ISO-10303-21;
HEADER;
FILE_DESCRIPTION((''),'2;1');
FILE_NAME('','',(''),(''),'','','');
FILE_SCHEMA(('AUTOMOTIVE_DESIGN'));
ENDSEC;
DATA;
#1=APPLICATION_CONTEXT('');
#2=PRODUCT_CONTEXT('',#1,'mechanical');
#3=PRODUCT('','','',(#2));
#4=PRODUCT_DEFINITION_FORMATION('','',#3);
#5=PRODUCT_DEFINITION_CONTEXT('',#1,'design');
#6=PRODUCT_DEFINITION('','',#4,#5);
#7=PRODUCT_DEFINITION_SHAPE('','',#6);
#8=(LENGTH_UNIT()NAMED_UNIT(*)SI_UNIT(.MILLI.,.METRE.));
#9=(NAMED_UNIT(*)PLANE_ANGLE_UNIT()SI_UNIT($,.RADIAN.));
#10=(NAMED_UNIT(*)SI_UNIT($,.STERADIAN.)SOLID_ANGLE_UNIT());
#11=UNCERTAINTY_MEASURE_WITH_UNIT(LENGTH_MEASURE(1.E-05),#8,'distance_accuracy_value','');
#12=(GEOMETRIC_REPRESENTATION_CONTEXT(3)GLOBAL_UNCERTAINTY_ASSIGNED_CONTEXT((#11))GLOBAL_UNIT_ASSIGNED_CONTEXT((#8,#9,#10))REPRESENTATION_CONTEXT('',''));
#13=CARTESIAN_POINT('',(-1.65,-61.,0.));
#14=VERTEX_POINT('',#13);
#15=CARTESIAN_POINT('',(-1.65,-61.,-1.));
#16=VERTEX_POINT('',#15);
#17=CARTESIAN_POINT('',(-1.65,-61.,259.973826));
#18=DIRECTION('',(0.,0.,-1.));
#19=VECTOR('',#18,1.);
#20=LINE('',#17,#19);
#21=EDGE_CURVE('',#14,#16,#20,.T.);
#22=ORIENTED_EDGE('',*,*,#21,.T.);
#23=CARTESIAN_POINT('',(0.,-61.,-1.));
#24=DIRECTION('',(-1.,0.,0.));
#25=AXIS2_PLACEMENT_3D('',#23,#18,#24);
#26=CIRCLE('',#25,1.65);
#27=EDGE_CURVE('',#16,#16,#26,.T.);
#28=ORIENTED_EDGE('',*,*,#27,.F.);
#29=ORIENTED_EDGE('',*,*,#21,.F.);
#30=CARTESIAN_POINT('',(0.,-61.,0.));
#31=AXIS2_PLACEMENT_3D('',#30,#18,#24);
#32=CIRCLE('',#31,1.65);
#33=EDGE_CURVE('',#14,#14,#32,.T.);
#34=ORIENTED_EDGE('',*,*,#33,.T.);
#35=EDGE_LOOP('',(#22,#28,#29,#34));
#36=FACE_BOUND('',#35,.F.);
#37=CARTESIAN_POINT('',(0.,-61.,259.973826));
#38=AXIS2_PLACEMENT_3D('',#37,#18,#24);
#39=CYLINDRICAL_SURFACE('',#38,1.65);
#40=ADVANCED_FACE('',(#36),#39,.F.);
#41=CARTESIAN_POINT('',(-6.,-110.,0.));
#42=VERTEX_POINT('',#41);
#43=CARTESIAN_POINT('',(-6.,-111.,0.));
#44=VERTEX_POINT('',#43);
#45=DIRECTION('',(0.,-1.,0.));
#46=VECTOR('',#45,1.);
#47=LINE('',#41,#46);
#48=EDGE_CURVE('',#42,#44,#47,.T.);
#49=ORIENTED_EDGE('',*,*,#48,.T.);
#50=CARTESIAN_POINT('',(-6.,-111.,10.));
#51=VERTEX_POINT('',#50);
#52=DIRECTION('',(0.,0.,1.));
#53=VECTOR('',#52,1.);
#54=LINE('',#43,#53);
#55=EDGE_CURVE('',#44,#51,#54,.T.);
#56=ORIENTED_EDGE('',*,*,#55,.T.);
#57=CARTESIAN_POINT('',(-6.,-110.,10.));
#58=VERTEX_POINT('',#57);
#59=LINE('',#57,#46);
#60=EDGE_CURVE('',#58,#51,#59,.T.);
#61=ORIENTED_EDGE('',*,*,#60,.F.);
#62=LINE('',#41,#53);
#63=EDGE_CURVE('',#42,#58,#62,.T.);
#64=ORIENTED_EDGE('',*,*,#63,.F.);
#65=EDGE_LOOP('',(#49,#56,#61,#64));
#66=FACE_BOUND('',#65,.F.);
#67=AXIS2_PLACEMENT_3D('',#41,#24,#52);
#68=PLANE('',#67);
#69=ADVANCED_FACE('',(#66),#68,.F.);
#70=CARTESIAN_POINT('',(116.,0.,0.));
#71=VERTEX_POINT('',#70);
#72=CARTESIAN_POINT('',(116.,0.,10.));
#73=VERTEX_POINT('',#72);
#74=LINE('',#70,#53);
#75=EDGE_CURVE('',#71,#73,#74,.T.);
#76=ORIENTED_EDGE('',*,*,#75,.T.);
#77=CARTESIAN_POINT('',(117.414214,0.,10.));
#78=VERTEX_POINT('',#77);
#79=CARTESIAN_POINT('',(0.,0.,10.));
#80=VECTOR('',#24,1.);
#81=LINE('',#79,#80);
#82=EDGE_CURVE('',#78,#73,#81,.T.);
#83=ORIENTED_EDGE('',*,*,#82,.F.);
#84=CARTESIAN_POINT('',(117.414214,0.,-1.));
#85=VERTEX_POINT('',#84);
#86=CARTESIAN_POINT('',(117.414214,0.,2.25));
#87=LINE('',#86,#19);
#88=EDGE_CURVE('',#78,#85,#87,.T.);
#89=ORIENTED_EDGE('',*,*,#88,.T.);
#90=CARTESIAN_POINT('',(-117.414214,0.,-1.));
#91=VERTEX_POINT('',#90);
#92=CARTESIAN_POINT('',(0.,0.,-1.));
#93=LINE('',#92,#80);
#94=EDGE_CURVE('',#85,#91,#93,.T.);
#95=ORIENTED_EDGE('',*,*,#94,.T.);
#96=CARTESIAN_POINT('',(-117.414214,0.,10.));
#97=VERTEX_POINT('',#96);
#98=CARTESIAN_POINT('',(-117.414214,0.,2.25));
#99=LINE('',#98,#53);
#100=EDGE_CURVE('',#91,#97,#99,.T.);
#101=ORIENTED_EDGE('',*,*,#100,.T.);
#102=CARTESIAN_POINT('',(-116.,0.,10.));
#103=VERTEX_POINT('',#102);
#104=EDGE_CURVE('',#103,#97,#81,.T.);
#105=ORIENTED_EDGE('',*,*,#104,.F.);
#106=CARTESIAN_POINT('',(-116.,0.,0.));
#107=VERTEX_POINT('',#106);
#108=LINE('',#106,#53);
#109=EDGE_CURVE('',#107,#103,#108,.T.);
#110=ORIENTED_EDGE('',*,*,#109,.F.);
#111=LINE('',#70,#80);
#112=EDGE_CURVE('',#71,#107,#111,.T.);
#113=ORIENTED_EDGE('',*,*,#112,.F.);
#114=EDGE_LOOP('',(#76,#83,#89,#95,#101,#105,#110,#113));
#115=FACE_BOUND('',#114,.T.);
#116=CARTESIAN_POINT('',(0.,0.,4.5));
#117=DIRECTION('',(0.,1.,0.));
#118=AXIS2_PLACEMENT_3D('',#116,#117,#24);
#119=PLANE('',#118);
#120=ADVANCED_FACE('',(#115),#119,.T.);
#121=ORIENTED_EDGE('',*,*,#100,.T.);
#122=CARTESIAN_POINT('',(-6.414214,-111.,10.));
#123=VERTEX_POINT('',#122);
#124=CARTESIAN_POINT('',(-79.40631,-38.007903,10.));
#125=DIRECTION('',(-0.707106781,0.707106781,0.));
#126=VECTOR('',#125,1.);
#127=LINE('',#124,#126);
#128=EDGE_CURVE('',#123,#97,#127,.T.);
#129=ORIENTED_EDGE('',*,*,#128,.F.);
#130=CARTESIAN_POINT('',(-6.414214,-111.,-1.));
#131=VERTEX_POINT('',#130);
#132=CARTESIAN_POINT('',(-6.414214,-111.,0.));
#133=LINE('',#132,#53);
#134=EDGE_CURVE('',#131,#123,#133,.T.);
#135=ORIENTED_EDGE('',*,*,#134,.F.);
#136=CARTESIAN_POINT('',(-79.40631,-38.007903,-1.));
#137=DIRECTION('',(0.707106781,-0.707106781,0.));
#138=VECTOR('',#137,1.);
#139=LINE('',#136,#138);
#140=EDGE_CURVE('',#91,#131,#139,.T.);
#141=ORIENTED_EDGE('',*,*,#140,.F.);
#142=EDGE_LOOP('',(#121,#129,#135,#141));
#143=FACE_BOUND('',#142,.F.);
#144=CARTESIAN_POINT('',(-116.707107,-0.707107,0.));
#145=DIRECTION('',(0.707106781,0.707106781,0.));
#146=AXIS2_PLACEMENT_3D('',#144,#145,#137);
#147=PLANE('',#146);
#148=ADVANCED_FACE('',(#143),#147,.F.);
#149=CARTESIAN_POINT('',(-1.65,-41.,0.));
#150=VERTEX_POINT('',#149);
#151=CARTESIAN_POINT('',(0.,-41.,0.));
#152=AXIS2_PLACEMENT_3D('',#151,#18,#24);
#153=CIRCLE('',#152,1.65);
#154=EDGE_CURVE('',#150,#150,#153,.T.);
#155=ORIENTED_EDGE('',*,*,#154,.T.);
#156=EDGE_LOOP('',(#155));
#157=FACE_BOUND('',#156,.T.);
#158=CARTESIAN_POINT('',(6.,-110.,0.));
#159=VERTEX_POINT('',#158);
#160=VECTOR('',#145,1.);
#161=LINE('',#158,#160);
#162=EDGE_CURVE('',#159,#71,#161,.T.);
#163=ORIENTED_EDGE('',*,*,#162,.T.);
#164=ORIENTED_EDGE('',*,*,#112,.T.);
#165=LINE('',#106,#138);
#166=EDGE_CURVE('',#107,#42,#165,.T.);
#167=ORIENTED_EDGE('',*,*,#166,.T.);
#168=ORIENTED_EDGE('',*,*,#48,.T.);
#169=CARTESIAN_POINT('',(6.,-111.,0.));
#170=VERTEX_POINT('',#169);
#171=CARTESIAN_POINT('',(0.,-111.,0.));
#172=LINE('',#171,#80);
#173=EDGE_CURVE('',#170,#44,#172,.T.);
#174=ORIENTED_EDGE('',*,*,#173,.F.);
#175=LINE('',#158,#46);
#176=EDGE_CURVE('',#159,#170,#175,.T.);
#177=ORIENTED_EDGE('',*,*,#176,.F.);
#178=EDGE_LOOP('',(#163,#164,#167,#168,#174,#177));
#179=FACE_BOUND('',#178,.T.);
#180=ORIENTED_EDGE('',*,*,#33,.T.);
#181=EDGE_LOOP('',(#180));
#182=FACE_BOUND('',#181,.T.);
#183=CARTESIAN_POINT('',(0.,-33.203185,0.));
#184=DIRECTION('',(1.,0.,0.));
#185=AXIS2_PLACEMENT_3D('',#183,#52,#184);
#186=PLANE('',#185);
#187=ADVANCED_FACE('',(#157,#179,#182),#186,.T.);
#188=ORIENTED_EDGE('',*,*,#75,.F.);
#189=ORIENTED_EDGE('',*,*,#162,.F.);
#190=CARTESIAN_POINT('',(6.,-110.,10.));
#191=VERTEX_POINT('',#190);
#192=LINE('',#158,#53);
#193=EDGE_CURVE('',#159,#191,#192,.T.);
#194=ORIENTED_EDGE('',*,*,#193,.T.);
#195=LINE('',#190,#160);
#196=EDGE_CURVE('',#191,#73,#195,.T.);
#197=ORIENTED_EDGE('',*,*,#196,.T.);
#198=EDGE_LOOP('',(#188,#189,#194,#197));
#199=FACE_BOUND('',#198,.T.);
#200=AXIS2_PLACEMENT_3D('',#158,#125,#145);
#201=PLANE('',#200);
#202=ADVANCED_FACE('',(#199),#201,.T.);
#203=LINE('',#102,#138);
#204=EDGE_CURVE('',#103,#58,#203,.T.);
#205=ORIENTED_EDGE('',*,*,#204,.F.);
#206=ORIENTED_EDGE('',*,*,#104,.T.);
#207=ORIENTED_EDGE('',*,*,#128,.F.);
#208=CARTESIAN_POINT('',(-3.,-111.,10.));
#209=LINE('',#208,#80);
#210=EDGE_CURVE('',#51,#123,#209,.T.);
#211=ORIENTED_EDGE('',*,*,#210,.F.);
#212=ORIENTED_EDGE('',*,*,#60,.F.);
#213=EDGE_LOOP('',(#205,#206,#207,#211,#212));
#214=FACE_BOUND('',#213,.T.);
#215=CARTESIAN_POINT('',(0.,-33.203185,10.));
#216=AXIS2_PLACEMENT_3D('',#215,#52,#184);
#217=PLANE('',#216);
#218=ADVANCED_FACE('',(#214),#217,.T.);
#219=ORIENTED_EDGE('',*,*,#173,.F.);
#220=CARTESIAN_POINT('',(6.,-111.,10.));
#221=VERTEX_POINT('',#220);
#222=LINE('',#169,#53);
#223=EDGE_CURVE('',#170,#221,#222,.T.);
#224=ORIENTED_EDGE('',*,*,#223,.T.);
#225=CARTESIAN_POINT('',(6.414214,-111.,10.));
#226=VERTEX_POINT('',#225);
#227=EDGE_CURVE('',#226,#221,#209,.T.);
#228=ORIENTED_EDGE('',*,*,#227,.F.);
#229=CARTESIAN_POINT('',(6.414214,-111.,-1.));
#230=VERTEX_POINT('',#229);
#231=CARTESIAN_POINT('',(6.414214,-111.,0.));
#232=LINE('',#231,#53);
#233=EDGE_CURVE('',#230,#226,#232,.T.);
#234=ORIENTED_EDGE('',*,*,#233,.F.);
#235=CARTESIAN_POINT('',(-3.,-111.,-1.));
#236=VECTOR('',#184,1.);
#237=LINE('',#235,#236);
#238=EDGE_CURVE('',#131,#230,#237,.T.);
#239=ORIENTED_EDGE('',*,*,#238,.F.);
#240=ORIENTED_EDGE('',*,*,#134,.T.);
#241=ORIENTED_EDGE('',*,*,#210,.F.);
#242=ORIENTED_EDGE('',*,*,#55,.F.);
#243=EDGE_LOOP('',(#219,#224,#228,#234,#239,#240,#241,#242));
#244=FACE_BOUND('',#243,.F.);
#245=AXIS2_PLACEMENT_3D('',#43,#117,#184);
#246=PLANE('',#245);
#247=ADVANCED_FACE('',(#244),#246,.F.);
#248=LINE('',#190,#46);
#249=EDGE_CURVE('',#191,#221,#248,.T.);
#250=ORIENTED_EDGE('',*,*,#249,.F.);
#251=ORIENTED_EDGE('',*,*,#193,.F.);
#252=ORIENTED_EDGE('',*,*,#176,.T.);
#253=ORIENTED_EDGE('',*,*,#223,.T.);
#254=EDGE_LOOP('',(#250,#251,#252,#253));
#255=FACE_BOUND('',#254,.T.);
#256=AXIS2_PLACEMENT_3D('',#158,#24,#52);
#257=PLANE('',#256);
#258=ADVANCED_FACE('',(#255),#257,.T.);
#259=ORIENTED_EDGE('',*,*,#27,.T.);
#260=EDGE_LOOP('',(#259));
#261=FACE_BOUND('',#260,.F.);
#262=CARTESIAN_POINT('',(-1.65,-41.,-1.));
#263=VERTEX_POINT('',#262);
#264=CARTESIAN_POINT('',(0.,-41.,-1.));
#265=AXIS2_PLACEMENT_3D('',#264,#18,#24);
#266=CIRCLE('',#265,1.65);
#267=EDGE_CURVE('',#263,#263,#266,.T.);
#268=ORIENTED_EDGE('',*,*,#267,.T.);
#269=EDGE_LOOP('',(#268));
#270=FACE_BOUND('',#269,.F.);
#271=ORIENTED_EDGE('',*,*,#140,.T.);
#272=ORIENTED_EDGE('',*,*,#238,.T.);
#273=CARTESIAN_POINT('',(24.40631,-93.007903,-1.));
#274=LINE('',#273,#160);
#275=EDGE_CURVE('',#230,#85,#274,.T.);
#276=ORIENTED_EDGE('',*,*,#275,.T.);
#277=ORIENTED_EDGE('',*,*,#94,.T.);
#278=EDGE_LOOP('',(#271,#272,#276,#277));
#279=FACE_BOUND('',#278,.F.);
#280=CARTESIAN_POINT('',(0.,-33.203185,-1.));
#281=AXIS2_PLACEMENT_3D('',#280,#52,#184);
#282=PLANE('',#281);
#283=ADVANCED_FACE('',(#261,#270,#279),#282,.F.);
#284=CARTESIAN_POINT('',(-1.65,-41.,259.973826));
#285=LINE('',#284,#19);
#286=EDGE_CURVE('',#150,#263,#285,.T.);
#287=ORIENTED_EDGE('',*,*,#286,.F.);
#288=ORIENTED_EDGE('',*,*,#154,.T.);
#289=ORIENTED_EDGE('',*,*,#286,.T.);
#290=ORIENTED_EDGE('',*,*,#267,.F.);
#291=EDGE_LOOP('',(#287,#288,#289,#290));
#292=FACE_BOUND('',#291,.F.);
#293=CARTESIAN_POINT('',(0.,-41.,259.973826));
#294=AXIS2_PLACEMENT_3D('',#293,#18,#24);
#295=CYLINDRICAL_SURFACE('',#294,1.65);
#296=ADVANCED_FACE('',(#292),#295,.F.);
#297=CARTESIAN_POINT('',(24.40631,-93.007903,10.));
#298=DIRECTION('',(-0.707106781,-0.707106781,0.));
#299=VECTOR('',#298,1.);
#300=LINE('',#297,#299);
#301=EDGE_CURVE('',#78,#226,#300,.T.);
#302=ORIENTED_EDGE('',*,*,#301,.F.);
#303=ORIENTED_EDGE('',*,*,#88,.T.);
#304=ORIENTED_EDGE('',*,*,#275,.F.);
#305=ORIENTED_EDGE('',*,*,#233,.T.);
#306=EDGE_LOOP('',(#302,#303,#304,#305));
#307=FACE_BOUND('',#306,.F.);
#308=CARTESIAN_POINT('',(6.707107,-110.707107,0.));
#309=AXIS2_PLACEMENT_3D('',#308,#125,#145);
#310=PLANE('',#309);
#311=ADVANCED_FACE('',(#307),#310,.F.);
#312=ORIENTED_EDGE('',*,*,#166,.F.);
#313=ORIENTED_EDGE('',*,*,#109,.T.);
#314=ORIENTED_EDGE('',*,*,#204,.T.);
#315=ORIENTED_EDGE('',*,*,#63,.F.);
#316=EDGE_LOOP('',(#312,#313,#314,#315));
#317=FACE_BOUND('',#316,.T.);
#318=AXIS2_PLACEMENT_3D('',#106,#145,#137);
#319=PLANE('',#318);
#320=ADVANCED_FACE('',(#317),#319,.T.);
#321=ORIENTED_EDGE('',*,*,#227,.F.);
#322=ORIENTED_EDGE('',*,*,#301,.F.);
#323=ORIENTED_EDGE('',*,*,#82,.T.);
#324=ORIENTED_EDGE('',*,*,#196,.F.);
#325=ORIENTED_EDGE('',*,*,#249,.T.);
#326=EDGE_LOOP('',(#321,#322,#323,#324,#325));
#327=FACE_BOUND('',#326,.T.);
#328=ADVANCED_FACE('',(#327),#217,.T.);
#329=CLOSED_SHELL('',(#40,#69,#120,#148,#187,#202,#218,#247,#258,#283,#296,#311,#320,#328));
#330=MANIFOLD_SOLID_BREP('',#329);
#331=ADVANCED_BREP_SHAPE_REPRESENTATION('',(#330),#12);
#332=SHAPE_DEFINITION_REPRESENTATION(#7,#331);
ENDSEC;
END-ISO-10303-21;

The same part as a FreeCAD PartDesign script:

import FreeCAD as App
import Part
import Sketcher
from FreeCAD import Vector
Q = App.Units.Quantity


def faces_at(feature, points):
    """Names of the faces that lie closest to the given points."""
    faces = feature.Shape.Faces
    near = lambda p: min(range(len(faces)), key=lambda i: faces[i].distToShape(Part.Vertex(*p))[0])
    return sorted({f"Face{near(p) + 1}" for p in points})


def add_polygon(sketch, points):
    """Adds a closed chain of lines whose ends are joined by coincident constraints."""
    first, n = sketch.GeometryCount, len(points)
    for a, b in zip(points, points[1:] + points[:1]):
        sketch.addGeometry(Part.LineSegment(App.Vector(*a, 0), App.Vector(*b, 0)), False)
    for i in range(n):
        sketch.addConstraint(Sketcher.Constraint("Coincident", first + i, 2, first + (i + 1) % n, 1))

doc = App.newDocument("Part")
body = doc.addObject("PartDesign::Body", "Body")

# Sketch on XY plane
sketch1 = doc.addObject("Sketcher::SketchObject", "Sketch")
body.addObject(sketch1)
sketch1.AttachmentSupport = (doc.XY_Plane, [""])
sketch1.MapMode = "FlatFace"
add_polygon(sketch1, [(116, 0), (-116, 0), (-6, -110), (6, -110)])  # lines 0-3
sketch1.addConstraint(Sketcher.Constraint("Horizontal", 0))
sketch1.addConstraint(Sketcher.Constraint("Horizontal", 2))
sketch1.addConstraint(Sketcher.Constraint("Symmetric", 0, 2, 3, 2, -1, 1))
sketch1.addConstraint(Sketcher.Constraint("Perpendicular", 1, 3))
sketch1.addConstraint(Sketcher.Constraint("Equal", 1, 3))
sketch1.addConstraint(Sketcher.Constraint("DistanceX", 0, 2, 0, 1, Q("232 mm")))
sketch1.addConstraint(Sketcher.Constraint("DistanceX", 2, 1, 2, 2, Q("12 mm")))
pad1 = doc.addObject("PartDesign::Pad", "Pad")
body.addObject(pad1)
pad1.Profile = sketch1
pad1.Length = 10
doc.recompute()

thickness = doc.addObject("PartDesign::Thickness", "Thickness")
body.addObject(thickness)
thickness.Base = (pad1, faces_at(pad1, [(0, -55, 10)]))
thickness.Value = 1
thickness.Reversed = False
thickness.Join = "Intersection"

# Sketch on XZ plane
sketch2 = doc.addObject("Sketcher::SketchObject", "Sketch001")
body.addObject(sketch2)
sketch2.AttachmentSupport = (doc.XZ_Plane, [""])
sketch2.MapMode = "FlatFace"
sketch2.AttachmentOffset = App.Placement(Vector(0, 0, 110), App.Rotation())
add_polygon(sketch2, [(6, 10), (6, 0), (-6, 0), (-6, 10)])  # lines 0-3
sketch2.addConstraint(Sketcher.Constraint("Vertical", 0))
sketch2.addConstraint(Sketcher.Constraint("Horizontal", 1))
sketch2.addConstraint(Sketcher.Constraint("Vertical", 2))
sketch2.addConstraint(Sketcher.Constraint("Horizontal", 3))
sketch2.addConstraint(Sketcher.Constraint("Symmetric", 0, 2, 1, 2, -1, 1))
sketch2.addConstraint(Sketcher.Constraint("DistanceX", 1, 2, 1, 1, Q("12 mm")))
sketch2.addConstraint(Sketcher.Constraint("DistanceY", 0, 2, 0, 1, Q("10 mm")))
pocket1 = doc.addObject("PartDesign::Pocket", "Pocket")
body.addObject(pocket1)
pocket1.Profile = sketch2
pocket1.Length = 25
pocket1.Reversed = True

# Sketch on XZ plane
sketch3 = doc.addObject("Sketcher::SketchObject", "Sketch002")
body.addObject(sketch3)
sketch3.AttachmentSupport = (doc.XZ_Plane, [""])
sketch3.MapMode = "FlatFace"
sketch3.AttachmentOffset = App.Placement(Vector(0, 0, -1), App.Rotation())
add_polygon(sketch3, [(118, 10), (118, -1), (-118, -1), (-118, 10)])  # lines 0-3
sketch3.addConstraint(Sketcher.Constraint("Vertical", 0))
sketch3.addConstraint(Sketcher.Constraint("Horizontal", 1))
sketch3.addConstraint(Sketcher.Constraint("Vertical", 2))
sketch3.addConstraint(Sketcher.Constraint("Horizontal", 3))
sketch3.addConstraint(Sketcher.Constraint("DistanceY", 0, 2, 0, 1, Q("11 mm")))
sketch3.addConstraint(Sketcher.Constraint("DistanceY", 0, 2, -1, 1, Q("1 mm")))
sketch3.addConstraint(Sketcher.Constraint("DistanceX", 1, 2, 1, 1, Q("236.828427 mm")))
sketch3.addConstraint(Sketcher.Constraint("DistanceX", -1, 1, 0, 2, Q("118.414214 mm")))
pocket2 = doc.addObject("PartDesign::Pocket", "Pocket001")
body.addObject(pocket2)
pocket2.Profile = sketch3
pocket2.Length = 1
pocket2.Reversed = True

# Sketch on XY plane
sketch4 = doc.addObject("Sketcher::SketchObject", "Sketch003")
body.addObject(sketch4)
sketch4.AttachmentSupport = (doc.XY_Plane, [""])
sketch4.MapMode = "FlatFace"
sketch4.addGeometry(Part.Circle(Vector(0, -41, 0), Vector(0, 0, 1), 1.6), False)
sketch4.addGeometry(Part.Circle(Vector(0, -61, 0), Vector(0, 0, 1), 1.6), False)
sketch4.addConstraint(Sketcher.Constraint("Equal", 0, 1))
sketch4.addConstraint(Sketcher.Constraint("PointOnObject", 0, 3, -2))
sketch4.addConstraint(Sketcher.Constraint("PointOnObject", 1, 3, -2))
sketch4.addConstraint(Sketcher.Constraint("Diameter", 0, Q("3.3 mm")))
sketch4.addConstraint(Sketcher.Constraint("DistanceY", 0, 3, -1, 1, Q("41 mm")))
sketch4.addConstraint(Sketcher.Constraint("DistanceY", 1, 3, -1, 1, Q("61 mm")))
doc.recompute()
hole = doc.addObject("PartDesign::Hole", "Hole")
body.addObject(hole)
hole.Profile = sketch4
hole.ThreadType = "None"
hole.Diameter = 3.3
hole.DepthType = "ThroughAll"

doc.recompute()
